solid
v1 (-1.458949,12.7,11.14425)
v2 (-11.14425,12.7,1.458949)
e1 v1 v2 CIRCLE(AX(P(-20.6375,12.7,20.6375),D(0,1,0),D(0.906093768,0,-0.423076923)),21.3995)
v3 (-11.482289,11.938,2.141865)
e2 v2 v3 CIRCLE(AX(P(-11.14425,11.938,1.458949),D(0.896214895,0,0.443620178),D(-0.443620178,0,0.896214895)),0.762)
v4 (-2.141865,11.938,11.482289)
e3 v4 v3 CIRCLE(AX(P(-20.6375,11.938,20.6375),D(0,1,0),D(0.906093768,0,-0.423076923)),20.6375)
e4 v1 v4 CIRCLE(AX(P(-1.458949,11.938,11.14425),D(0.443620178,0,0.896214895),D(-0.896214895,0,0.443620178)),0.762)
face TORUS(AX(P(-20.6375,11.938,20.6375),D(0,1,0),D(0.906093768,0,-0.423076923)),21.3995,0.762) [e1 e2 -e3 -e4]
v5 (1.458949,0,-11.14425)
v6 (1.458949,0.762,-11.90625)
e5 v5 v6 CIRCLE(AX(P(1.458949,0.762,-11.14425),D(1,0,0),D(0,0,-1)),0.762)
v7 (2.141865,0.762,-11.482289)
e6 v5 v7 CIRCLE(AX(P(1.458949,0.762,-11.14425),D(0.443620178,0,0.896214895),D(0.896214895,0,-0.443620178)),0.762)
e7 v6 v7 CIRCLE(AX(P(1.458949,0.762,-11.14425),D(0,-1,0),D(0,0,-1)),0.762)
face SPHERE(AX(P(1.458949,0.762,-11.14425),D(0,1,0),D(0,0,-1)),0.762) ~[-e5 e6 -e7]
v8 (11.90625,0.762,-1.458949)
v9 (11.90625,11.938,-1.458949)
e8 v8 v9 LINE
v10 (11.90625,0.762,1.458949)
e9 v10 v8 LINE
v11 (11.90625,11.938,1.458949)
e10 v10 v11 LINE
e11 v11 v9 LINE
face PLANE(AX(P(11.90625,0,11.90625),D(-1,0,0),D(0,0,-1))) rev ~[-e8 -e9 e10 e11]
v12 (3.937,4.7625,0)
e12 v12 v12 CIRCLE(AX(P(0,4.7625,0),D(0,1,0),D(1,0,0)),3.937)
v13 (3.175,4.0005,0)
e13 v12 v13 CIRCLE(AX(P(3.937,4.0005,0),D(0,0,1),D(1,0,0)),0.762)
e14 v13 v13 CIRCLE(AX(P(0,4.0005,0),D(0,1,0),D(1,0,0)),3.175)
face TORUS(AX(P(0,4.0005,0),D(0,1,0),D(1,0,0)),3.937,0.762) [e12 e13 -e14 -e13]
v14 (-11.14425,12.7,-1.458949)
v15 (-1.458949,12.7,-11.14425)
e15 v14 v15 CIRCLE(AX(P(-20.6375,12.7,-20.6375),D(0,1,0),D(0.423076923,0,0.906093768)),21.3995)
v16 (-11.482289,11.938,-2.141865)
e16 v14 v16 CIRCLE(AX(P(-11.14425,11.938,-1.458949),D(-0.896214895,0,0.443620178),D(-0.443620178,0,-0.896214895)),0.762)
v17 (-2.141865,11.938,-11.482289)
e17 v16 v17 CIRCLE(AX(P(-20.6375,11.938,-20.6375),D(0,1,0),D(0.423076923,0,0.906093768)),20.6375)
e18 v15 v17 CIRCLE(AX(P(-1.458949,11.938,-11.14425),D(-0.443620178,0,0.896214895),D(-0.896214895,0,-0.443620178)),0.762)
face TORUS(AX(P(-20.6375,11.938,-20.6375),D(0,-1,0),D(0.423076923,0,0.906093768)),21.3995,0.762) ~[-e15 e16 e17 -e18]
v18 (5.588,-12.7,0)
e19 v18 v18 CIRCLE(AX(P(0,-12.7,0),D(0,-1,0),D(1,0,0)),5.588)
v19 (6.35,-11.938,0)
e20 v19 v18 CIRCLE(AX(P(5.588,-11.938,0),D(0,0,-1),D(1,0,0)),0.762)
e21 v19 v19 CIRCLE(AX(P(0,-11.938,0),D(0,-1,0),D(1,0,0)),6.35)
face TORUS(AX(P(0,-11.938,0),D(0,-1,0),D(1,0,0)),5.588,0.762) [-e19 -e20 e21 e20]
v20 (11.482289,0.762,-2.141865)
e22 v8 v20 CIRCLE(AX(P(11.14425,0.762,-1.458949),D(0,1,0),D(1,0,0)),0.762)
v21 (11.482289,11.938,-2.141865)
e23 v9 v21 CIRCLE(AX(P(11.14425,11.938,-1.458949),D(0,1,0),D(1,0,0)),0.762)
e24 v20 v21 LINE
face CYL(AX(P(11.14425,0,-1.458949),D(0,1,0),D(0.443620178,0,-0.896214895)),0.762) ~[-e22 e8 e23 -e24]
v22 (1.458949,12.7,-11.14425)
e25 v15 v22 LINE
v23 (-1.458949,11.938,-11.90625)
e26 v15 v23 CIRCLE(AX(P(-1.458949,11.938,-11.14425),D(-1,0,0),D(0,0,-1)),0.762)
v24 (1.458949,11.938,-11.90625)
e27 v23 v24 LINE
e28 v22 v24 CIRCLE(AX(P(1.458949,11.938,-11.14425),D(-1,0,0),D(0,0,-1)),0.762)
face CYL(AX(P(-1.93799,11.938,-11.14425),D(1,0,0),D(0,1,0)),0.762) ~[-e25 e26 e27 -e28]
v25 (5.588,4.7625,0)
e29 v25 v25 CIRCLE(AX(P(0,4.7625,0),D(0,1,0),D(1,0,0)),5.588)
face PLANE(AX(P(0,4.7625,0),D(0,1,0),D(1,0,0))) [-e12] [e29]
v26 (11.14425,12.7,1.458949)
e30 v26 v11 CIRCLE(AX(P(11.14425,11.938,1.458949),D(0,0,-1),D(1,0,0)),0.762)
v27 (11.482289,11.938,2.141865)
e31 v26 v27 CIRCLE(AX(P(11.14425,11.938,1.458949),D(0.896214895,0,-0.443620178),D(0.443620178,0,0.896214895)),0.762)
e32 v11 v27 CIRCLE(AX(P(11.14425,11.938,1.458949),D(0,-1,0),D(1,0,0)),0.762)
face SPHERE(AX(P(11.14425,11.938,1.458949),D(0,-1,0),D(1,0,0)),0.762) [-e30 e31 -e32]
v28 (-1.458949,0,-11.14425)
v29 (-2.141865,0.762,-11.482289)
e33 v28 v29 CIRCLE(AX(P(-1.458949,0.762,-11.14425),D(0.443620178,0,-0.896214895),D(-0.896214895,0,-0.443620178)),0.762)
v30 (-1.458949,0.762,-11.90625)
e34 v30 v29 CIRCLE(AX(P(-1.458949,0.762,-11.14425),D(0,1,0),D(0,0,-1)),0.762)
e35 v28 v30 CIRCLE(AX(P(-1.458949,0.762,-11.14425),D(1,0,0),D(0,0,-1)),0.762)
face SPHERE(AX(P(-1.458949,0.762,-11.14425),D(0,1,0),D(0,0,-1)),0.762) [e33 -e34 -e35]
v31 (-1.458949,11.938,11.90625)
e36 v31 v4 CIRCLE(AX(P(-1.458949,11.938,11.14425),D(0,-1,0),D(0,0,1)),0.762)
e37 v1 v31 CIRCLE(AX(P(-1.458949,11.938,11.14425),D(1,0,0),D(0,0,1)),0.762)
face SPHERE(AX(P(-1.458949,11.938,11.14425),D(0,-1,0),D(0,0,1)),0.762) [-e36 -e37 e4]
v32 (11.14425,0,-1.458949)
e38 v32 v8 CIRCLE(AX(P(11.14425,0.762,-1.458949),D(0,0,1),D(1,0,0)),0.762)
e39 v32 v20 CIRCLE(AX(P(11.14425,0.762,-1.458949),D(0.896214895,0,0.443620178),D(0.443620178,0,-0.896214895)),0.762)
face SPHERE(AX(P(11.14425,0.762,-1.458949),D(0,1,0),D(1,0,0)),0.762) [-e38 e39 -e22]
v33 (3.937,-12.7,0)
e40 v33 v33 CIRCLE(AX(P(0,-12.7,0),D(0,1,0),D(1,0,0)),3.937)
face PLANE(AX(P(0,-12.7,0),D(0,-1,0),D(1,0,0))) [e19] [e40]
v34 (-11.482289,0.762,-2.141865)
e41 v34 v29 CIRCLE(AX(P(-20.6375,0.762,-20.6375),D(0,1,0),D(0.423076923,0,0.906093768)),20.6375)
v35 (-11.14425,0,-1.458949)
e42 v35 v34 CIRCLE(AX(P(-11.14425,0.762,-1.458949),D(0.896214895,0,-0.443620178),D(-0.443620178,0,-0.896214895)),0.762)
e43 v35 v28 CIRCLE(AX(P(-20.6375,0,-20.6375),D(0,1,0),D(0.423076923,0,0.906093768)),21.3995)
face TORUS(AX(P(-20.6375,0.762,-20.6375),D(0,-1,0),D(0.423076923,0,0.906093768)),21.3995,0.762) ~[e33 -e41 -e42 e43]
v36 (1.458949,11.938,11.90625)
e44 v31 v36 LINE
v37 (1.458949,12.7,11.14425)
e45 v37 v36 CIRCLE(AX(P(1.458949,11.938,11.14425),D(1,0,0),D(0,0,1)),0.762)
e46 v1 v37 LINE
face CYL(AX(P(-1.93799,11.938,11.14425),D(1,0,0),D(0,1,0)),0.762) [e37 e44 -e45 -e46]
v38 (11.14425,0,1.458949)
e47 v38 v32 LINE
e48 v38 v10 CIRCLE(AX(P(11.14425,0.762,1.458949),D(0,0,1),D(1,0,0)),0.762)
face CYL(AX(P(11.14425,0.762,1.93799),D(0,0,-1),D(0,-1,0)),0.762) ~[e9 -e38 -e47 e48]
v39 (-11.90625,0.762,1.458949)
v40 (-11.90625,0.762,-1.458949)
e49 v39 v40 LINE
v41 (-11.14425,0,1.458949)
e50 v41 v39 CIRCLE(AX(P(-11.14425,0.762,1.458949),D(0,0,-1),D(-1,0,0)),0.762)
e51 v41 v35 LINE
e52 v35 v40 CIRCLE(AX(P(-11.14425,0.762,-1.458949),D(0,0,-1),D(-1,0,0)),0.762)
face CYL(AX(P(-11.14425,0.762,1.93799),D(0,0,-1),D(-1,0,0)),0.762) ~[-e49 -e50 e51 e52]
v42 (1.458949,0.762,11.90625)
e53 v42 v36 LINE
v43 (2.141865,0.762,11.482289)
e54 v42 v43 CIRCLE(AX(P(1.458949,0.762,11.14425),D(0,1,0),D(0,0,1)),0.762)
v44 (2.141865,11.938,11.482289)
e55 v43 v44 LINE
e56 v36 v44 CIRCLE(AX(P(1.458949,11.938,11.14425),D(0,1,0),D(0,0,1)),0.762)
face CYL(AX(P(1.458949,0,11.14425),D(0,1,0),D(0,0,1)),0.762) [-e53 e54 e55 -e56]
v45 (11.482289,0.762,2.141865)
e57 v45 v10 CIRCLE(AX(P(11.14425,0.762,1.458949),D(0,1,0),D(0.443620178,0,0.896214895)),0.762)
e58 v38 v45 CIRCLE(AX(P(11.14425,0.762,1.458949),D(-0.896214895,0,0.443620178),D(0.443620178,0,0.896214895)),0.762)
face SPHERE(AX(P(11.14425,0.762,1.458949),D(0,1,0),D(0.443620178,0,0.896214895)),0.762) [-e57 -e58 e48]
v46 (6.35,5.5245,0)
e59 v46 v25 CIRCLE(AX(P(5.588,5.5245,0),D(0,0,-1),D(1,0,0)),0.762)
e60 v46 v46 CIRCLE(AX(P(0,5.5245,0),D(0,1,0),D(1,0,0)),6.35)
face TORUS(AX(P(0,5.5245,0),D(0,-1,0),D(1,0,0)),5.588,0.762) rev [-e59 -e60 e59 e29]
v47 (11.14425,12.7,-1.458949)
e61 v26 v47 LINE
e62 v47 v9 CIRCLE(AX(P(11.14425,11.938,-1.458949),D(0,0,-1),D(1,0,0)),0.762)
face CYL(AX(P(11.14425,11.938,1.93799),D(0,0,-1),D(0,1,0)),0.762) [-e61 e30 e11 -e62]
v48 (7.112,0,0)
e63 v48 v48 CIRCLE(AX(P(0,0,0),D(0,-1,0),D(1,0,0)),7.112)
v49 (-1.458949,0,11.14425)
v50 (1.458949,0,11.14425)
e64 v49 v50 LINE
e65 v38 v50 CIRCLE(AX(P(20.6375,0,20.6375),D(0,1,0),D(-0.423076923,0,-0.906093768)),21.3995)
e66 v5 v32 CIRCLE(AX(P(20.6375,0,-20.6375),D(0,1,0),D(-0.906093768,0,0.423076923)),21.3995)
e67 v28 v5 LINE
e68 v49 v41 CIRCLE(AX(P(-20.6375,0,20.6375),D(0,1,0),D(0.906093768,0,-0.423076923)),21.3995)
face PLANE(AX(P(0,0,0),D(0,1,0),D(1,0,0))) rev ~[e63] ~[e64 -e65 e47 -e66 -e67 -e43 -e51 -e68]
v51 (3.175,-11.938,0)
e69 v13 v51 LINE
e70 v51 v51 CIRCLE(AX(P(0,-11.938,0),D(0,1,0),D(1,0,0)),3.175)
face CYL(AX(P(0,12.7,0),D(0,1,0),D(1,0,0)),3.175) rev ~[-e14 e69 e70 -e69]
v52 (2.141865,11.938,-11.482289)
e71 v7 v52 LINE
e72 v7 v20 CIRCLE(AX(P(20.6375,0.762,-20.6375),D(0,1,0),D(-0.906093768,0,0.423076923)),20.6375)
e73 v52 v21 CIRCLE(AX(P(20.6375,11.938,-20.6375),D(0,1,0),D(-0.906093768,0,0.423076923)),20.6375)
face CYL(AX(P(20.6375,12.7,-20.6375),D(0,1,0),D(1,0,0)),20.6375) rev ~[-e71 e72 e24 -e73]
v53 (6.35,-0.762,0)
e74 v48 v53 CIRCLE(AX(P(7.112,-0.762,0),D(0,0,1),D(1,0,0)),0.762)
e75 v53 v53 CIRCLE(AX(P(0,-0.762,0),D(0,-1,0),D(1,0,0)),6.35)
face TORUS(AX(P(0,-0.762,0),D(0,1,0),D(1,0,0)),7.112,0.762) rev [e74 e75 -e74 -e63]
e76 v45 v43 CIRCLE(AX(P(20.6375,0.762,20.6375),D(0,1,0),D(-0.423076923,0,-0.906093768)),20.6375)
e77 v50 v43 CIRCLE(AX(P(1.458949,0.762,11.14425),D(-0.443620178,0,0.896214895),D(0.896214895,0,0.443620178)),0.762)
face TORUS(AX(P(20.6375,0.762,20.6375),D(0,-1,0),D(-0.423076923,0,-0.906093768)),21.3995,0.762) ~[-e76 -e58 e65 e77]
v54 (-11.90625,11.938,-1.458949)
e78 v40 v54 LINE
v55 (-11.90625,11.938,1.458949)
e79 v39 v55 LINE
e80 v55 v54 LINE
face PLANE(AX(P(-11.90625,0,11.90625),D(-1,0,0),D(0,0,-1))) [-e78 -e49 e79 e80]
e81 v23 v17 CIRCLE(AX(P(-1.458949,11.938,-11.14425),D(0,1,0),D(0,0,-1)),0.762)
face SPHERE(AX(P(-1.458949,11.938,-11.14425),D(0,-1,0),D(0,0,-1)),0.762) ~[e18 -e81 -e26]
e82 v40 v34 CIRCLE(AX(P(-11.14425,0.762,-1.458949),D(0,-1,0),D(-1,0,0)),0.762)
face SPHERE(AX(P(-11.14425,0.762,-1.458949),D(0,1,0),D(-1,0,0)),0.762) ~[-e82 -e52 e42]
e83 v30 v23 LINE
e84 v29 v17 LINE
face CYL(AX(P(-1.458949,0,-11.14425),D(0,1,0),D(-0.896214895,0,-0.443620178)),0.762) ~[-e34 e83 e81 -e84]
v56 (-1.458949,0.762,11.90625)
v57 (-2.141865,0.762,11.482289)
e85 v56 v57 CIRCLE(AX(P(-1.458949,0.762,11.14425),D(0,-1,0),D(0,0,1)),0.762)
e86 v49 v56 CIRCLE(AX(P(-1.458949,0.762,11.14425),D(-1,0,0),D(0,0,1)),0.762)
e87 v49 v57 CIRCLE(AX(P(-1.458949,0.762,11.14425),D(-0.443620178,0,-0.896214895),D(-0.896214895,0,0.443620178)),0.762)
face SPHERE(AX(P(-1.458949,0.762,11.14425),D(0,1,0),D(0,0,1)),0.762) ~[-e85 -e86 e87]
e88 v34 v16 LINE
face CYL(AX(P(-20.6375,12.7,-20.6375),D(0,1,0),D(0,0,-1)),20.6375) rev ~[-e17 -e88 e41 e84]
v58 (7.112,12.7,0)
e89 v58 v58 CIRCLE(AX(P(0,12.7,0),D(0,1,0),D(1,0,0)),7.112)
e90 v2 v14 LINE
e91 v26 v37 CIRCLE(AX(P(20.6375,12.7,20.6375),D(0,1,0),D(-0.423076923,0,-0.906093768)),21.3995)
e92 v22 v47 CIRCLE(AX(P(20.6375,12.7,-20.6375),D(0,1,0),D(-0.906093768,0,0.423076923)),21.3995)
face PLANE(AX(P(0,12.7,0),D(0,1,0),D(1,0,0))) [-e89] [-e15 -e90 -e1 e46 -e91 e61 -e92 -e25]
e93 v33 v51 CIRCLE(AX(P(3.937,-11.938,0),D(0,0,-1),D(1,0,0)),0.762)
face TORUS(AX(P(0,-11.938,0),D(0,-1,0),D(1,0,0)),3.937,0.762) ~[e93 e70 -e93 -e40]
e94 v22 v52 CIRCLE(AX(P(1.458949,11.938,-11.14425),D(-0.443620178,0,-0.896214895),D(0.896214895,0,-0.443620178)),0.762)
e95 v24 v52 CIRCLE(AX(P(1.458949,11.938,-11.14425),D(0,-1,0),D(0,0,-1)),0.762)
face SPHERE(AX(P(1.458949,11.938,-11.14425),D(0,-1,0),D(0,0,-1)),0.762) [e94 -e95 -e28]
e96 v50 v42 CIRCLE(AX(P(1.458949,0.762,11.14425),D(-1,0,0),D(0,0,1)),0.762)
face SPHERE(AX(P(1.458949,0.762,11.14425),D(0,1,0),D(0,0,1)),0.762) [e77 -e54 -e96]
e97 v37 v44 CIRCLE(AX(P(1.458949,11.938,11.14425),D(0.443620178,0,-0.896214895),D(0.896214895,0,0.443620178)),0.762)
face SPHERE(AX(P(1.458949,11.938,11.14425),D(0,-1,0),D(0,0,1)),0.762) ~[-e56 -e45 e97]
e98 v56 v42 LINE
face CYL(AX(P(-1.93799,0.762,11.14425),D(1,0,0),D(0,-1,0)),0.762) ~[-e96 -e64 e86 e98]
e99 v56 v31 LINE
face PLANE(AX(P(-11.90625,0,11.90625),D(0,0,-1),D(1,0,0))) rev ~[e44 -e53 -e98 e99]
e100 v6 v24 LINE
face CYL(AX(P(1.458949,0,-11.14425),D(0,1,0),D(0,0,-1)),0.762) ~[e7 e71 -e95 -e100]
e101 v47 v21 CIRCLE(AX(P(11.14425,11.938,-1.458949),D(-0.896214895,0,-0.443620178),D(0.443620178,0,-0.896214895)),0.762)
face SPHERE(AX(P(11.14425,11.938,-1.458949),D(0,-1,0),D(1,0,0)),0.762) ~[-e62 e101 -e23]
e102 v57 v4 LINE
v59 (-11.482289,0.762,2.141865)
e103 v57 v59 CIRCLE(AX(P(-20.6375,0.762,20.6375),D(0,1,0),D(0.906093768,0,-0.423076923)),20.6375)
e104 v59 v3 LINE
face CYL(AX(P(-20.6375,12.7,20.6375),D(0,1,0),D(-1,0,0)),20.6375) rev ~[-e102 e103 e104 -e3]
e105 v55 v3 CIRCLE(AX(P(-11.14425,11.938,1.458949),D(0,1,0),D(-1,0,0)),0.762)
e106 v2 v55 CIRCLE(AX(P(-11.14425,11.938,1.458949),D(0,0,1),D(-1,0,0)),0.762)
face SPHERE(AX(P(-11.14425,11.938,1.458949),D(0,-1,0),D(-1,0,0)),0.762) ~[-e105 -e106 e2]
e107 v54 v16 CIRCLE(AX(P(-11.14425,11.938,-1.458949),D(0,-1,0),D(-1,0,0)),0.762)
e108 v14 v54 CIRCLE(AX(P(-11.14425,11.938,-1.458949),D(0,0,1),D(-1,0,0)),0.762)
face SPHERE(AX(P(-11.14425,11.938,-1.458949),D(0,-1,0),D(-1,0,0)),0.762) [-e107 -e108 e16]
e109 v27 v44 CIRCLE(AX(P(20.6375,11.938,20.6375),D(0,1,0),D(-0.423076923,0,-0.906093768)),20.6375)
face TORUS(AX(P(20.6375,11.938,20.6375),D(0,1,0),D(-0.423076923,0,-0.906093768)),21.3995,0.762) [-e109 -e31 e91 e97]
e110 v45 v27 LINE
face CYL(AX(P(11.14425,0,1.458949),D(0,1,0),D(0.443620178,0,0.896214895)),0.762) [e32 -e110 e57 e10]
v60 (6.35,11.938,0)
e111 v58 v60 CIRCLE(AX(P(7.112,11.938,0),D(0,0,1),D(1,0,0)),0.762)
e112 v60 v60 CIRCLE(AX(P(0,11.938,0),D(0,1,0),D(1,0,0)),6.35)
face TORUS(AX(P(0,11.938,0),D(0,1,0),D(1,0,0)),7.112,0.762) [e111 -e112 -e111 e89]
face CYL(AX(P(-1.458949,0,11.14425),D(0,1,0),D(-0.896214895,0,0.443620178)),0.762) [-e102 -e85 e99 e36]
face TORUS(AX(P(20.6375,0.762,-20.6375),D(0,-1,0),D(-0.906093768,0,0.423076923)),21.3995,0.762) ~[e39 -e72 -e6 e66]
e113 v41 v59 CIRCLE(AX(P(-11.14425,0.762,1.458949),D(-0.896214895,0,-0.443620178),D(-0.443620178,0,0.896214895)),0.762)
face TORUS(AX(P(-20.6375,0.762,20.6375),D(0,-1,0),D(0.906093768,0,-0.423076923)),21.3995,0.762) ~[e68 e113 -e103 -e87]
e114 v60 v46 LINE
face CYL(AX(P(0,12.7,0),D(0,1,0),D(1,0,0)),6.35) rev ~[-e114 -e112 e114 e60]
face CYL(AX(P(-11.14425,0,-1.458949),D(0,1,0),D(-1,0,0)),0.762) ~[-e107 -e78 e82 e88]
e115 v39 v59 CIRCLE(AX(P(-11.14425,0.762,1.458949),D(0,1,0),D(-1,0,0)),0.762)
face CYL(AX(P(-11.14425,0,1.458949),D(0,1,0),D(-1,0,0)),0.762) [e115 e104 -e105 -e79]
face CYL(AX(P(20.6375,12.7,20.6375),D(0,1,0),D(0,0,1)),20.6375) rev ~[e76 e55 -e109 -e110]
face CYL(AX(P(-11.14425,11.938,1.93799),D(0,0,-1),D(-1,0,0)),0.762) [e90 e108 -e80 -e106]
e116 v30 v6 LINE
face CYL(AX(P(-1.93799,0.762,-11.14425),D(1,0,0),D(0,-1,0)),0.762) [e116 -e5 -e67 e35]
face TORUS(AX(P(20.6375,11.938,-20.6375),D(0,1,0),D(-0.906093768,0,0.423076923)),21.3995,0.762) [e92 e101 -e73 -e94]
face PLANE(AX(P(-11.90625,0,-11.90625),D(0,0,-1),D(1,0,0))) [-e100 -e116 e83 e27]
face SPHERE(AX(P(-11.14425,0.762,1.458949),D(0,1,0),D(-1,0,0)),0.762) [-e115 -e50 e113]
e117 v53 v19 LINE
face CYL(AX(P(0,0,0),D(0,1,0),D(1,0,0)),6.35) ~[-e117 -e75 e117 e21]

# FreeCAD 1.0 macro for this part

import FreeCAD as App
import Part
import Sketcher

V = App.Vector
Q = App.Units.Quantity

doc = App.newDocument("Part")
body = doc.addObject("PartDesign::Body", "Body")

sketch1 = doc.addObject("Sketcher::SketchObject", "Sketch")
body.addObject(sketch1)
sketch1.AttachmentSupport = (doc.XZ_Plane, [""])
sketch1.MapMode = "FlatFace"
sketch1.addGeometry(Part.LineSegment(V(-11.90625, -11.90625, 0), V(-11.90625, 11.90625, 0)), False)
sketch1.addGeometry(Part.LineSegment(V(-11.90625, 11.90625, 0), V(11.90625, 11.90625, 0)), False)
sketch1.addGeometry(Part.LineSegment(V(11.90625, 11.90625, 0), V(11.90625, -11.90625, 0)), False)
sketch1.addGeometry(Part.LineSegment(V(11.90625, -11.90625, 0), V(-11.90625, -11.90625, 0)), False)
sketch1.addConstraint(Sketcher.Constraint("Coincident", 0, 2, 1, 1))
sketch1.addConstraint(Sketcher.Constraint("Coincident", 1, 2, 2, 1))
sketch1.addConstraint(Sketcher.Constraint("Coincident", 2, 2, 3, 1))
sketch1.addConstraint(Sketcher.Constraint("Coincident", 3, 2, 0, 1))
sketch1.addConstraint(Sketcher.Constraint("Vertical", 0))
sketch1.addConstraint(Sketcher.Constraint("Horizontal", 1))
sketch1.addConstraint(Sketcher.Constraint("Vertical", 2))
sketch1.addConstraint(Sketcher.Constraint("Horizontal", 3))
sketch1.addConstraint(Sketcher.Constraint("Symmetric", 0, 2, 2, 2, -1, 1))
sketch1.addConstraint(Sketcher.Constraint("Equal", 3, 0))
sketch1.addConstraint(Sketcher.Constraint("DistanceX", 1, 1, 1, 2, Q("0.9375 in")))
pad1 = doc.addObject("PartDesign::Pad", "Pad")
body.addObject(pad1)
pad1.Profile = sketch1
pad1.Length = Q("0.5 in")
pad1.Reversed = True

sketch2 = doc.addObject("Sketcher::SketchObject", "Sketch001")
body.addObject(sketch2)
sketch2.AttachmentSupport = (doc.XZ_Plane, [""])
sketch2.MapMode = "FlatFace"
sketch2.AttachmentOffset = App.Placement(V(0, 0, -0.5 * 25.4), App.Rotation())
sketch2.addGeometry(Part.Circle(V(20.6375, -20.6375, 0), V(0, 0, 1), 20.6375), False)
sketch2.addConstraint(Sketcher.Constraint("Diameter", 0, Q("1.625 in")))
sketch2.addConstraint(Sketcher.Constraint("DistanceX", -1, 1, 0, 3, Q("0.8125 in")))
sketch2.addConstraint(Sketcher.Constraint("DistanceY", 0, 3, -1, 1, Q("0.8125 in")))
pocket1 = doc.addObject("PartDesign::Pocket", "Pocket")
body.addObject(pocket1)
pocket1.Profile = sketch2
pocket1.Type = "ThroughAll"
pocket1.Reversed = True
doc.recompute()

polarpattern = doc.addObject("PartDesign::PolarPattern", "PolarPattern")
body.addObject(polarpattern)
polarpattern.Originals = [pocket1]
polarpattern.Axis = (doc.Y_Axis, [""])
polarpattern.Angle = 360
polarpattern.Occurrences = 4
body.Tip = polarpattern

sketch3 = doc.addObject("Sketcher::SketchObject", "Sketch002")
body.addObject(sketch3)
sketch3.AttachmentSupport = (doc.XZ_Plane, [""])
sketch3.MapMode = "FlatFace"
sketch3.addGeometry(Part.Circle(V(0, 0, 0), V(0, 0, 1), 6.35), False)
sketch3.addConstraint(Sketcher.Constraint("Coincident", 0, 3, -1, 1))
sketch3.addConstraint(Sketcher.Constraint("Diameter", 0, Q("0.5 in")))
pad2 = doc.addObject("PartDesign::Pad", "Pad001")
body.addObject(pad2)
pad2.Profile = sketch3
pad2.Length = Q("0.5 in")

sketch4 = doc.addObject("Sketcher::SketchObject", "Sketch003")
body.addObject(sketch4)
sketch4.AttachmentSupport = (doc.XZ_Plane, [""])
sketch4.MapMode = "FlatFace"
sketch4.AttachmentOffset = App.Placement(V(0, 0, -0.5 * 25.4), App.Rotation())
sketch4.addGeometry(Part.Circle(V(0, 0, 0), V(0, 0, 1), 3.175), False)
sketch4.addConstraint(Sketcher.Constraint("Coincident", 0, 3, -1, 1))
sketch4.addConstraint(Sketcher.Constraint("Diameter", 0, Q("0.25 in")))
pocket2 = doc.addObject("PartDesign::Pocket", "Pocket001")
body.addObject(pocket2)
pocket2.Profile = sketch4
pocket2.Type = "ThroughAll"
pocket2.Reversed = True

sketch5 = doc.addObject("Sketcher::SketchObject", "Sketch004")
body.addObject(sketch5)
sketch5.AttachmentSupport = (doc.XZ_Plane, [""])
sketch5.MapMode = "FlatFace"
sketch5.AttachmentOffset = App.Placement(V(0, 0, -0.5 * 25.4), App.Rotation())
sketch5.addGeometry(Part.Circle(V(0, 0, 0), V(0, 0, 1), 6.35), False)
sketch5.addConstraint(Sketcher.Constraint("Coincident", 0, 3, -1, 1))
sketch5.addConstraint(Sketcher.Constraint("Diameter", 0, Q("0.5 in")))
pocket3 = doc.addObject("PartDesign::Pocket", "Pocket002")
body.addObject(pocket3)
pocket3.Profile = sketch5
pocket3.Length = Q("0.3125 in")
pocket3.Reversed = True
doc.recompute()

fillet = doc.addObject("PartDesign::Fillet", "Fillet")
body.addObject(fillet)
fillet.Base = (pocket3, ["Edge1"])
fillet.UseAllEdges = True
fillet.Radius = Q("0.03 in")

doc.recompute()
